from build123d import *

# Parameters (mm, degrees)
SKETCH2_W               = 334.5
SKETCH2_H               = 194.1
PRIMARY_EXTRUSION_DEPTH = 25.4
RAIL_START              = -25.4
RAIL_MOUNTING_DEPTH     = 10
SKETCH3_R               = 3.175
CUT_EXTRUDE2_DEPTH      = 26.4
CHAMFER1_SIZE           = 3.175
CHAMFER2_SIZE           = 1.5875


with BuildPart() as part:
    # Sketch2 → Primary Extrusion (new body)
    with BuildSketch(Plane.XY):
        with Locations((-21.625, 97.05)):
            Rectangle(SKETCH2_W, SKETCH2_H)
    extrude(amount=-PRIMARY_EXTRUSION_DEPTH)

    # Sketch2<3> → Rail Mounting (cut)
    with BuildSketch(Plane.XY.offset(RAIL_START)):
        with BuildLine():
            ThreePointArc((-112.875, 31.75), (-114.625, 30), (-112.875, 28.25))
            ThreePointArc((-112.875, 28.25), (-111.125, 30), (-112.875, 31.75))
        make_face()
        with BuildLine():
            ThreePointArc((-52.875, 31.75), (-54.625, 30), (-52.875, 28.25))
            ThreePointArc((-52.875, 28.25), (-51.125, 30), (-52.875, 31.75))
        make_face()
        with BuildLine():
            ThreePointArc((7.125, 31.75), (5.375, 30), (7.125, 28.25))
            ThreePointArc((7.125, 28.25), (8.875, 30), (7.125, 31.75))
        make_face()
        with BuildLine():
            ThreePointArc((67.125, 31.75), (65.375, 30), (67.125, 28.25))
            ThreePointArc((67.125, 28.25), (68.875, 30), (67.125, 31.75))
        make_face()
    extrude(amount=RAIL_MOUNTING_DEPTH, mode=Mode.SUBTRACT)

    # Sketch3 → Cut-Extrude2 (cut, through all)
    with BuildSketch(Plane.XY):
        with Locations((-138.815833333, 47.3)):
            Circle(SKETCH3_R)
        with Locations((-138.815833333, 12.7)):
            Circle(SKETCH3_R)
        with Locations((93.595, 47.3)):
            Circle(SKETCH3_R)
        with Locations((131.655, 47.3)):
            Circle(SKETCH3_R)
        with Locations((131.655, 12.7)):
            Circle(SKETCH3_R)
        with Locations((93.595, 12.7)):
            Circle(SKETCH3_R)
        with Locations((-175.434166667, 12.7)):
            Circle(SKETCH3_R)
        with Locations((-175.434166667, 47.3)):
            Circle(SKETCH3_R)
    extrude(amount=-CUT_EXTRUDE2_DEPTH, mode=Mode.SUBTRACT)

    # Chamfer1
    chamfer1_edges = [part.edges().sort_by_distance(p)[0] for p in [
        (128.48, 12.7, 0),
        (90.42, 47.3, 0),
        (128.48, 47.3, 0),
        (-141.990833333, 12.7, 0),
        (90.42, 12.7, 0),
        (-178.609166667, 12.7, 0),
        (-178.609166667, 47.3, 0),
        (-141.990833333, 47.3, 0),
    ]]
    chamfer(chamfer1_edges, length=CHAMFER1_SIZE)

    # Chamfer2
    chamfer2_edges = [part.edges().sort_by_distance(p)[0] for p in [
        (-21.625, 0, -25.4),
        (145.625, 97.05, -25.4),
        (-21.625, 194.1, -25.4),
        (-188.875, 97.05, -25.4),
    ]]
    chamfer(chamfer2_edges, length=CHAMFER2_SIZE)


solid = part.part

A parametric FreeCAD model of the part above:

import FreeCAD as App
import Part
import Sketcher

V = App.Vector


def edges_at(feature, points):
    """Names of the edges that pass closest to the given points."""
    edges = feature.Shape.Edges
    near = lambda p: min(range(len(edges)), key=lambda i: edges[i].distToShape(Part.Vertex(*p))[0])
    return sorted({f"Edge{near(p) + 1}" for p in points})

doc = App.newDocument("Part")
body = doc.addObject("PartDesign::Body", "Body")

# Sketch on XY plane
sketch1 = doc.addObject("Sketcher::SketchObject", "Sketch")
body.addObject(sketch1)
sketch1.AttachmentSupport = (doc.XY_Plane, [""])
sketch1.MapMode = "FlatFace"
sketch1.addGeometry([
    Part.LineSegment(V(-189, 194, 0), V(-189, 0, 0)),
    Part.LineSegment(V(-189, 0, 0), V(146, 0, 0)),
    Part.LineSegment(V(146, 0, 0), V(146, 194, 0)),
    Part.LineSegment(V(146, 194, 0), V(-189, 194, 0)),
], False)
sketch1.addConstraint([
    Sketcher.Constraint("Coincident", 0, 2, 1, 1),
    Sketcher.Constraint("Coincident", 1, 2, 2, 1),
    Sketcher.Constraint("Coincident", 2, 2, 3, 1),
    Sketcher.Constraint("Coincident", 3, 2, 0, 1),
    Sketcher.Constraint("Vertical", 0),
    Sketcher.Constraint("Horizontal", 1),
    Sketcher.Constraint("Vertical", 2),
    Sketcher.Constraint("Horizontal", 3),
    Sketcher.Constraint("PointOnObject", 0, 2, -1),
    Sketcher.Constraint("DistanceX", 1, 1, 1, 2, 334.5),
    Sketcher.Constraint("DistanceY", 0, 2, 0, 1, 194.1),
    Sketcher.Constraint("DistanceX", 0, 2, -1, 1, 188.875),
])
pad1 = doc.addObject("PartDesign::Pad", "Pad")
body.addObject(pad1)
pad1.Profile = sketch1
pad1.Length = 25.4
pad1.Reversed = True

# Sketch on XY plane
sketch2 = doc.addObject("Sketcher::SketchObject", "Sketch001")
body.addObject(sketch2)
sketch2.AttachmentSupport = (doc.XY_Plane, [""])
sketch2.MapMode = "FlatFace"
sketch2.AttachmentOffset = App.Placement(V(0, 0, -25.4), App.Rotation())
sketch2.addGeometry([
    Part.Circle(V(-112.9, 30, 0), V(0, 0, 1), 1.8),
    Part.Circle(V(-52.9, 30, 0), V(0, 0, 1), 1.8),
    Part.Circle(V(7.1, 30, 0), V(0, 0, 1), 1.8),
    Part.Circle(V(67.1, 30, 0), V(0, 0, 1), 1.8),
], False)
sketch2.addConstraint([
    Sketcher.Constraint("Equal", 0, 1),
    Sketcher.Constraint("Equal", 1, 2),
    Sketcher.Constraint("Equal", 2, 3),
    Sketcher.Constraint("Horizontal", 0, 3, 1, 3),
    Sketcher.Constraint("Horizontal", 1, 3, 2, 3),
    Sketcher.Constraint("Horizontal", 2, 3, 3, 3),
    Sketcher.Constraint("Diameter", 0, 3.5),
    Sketcher.Constraint("DistanceY", -1, 1, 0, 3, 30.0),
    Sketcher.Constraint("DistanceX", 0, 3, 1, 3, 60.0),
    Sketcher.Constraint("DistanceX", 1, 3, 2, 3, 60.0),
    Sketcher.Constraint("DistanceX", 2, 3, 3, 3, 60.0),
    Sketcher.Constraint("DistanceX", 0, 3, -1, 1, 112.875),
])
pocket1 = doc.addObject("PartDesign::Pocket", "Pocket")
body.addObject(pocket1)
pocket1.Profile = sketch2
pocket1.Length = 10
pocket1.Reversed = True

# Sketch on XY plane
sketch3 = doc.addObject("Sketcher::SketchObject", "Sketch002")
body.addObject(sketch3)
sketch3.AttachmentSupport = (doc.XY_Plane, [""])
sketch3.MapMode = "FlatFace"
sketch3.addGeometry([
    Part.Circle(V(-138.8, 47.3, 0), V(0, 0, 1), 3.2),  # 0
    Part.Circle(V(-138.8, 12.7, 0), V(0, 0, 1), 3.2),  # 1
    Part.Circle(V(93.6, 47.3, 0), V(0, 0, 1), 3.2),  # 2
    Part.Circle(V(131.7, 47.3, 0), V(0, 0, 1), 3.2),  # 3
    Part.Circle(V(131.7, 12.7, 0), V(0, 0, 1), 3.2),  # 4
    Part.Circle(V(93.6, 12.7, 0), V(0, 0, 1), 3.2),  # 5
    Part.Circle(V(-175.4, 12.7, 0), V(0, 0, 1), 3.2),  # 6
    Part.Circle(V(-175.4, 47.3, 0), V(0, 0, 1), 3.2),  # 7
], False)
sketch3.addConstraint([
    Sketcher.Constraint("Equal", 0, 1),
    Sketcher.Constraint("Equal", 1, 2),
    Sketcher.Constraint("Equal", 2, 3),
    Sketcher.Constraint("Equal", 3, 4),
    Sketcher.Constraint("Equal", 4, 5),
    Sketcher.Constraint("Equal", 5, 6),
    Sketcher.Constraint("Equal", 6, 7),
    Sketcher.Constraint("Horizontal", 0, 3, 2, 3),
    Sketcher.Constraint("Horizontal", 2, 3, 3, 3),
    Sketcher.Constraint("Horizontal", 1, 3, 4, 3),
    Sketcher.Constraint("Horizontal", 4, 3, 5, 3),
    Sketcher.Constraint("Horizontal", 5, 3, 6, 3),
    Sketcher.Constraint("Horizontal", 3, 3, 7, 3),
    Sketcher.Constraint("Vertical", 0, 3, 1, 3),
    Sketcher.Constraint("Vertical", 3, 3, 4, 3),
    Sketcher.Constraint("Vertical", 2, 3, 5, 3),
    Sketcher.Constraint("Vertical", 6, 3, 7, 3),
    Sketcher.Constraint("Diameter", 0, 6.35),
    Sketcher.Constraint("DistanceY", -1, 1, 0, 3, 47.3),
    Sketcher.Constraint("DistanceY", -1, 1, 1, 3, 12.7),
    Sketcher.Constraint("DistanceX", 2, 3, 3, 3, 38.06),
    Sketcher.Constraint("DistanceX", -1, 1, 2, 3, 93.595),
    Sketcher.Constraint("DistanceX", 0, 3, -1, 1, 138.815833),
    Sketcher.Constraint("DistanceX", 6, 3, -1, 1, 175.434167),
])
pocket2 = doc.addObject("PartDesign::Pocket", "Pocket001")
body.addObject(pocket2)
pocket2.Profile = sketch3
pocket2.Type = "ThroughAll"
doc.recompute()

chamfer = doc.addObject("PartDesign::Chamfer", "Chamfer")
body.addObject(chamfer)
chamfer.Base = (pocket2, edges_at(pocket2, [
    (128.48, 12.7, 0),
    (90.42, 47.3, 0),
    (128.48, 47.3, 0),
    (-141.991, 12.7, 0),
    (90.42, 12.7, 0),
    (-178.609, 12.7, 0),
    (-178.609, 47.3, 0),
    (-141.991, 47.3, 0),
]))
chamfer.Size = 3.175
doc.recompute()

chamfer2 = doc.addObject("PartDesign::Chamfer", "Chamfer001")
body.addObject(chamfer2)
chamfer2.Base = (chamfer, edges_at(chamfer, [
    (-21.625, 0, -25.4),
    (145.625, 97.05, -25.4),
    (-21.625, 194.1, -25.4),
    (-188.875, 97.05, -25.4),
]))
chamfer2.Size = 1.5875

doc.recompute()
